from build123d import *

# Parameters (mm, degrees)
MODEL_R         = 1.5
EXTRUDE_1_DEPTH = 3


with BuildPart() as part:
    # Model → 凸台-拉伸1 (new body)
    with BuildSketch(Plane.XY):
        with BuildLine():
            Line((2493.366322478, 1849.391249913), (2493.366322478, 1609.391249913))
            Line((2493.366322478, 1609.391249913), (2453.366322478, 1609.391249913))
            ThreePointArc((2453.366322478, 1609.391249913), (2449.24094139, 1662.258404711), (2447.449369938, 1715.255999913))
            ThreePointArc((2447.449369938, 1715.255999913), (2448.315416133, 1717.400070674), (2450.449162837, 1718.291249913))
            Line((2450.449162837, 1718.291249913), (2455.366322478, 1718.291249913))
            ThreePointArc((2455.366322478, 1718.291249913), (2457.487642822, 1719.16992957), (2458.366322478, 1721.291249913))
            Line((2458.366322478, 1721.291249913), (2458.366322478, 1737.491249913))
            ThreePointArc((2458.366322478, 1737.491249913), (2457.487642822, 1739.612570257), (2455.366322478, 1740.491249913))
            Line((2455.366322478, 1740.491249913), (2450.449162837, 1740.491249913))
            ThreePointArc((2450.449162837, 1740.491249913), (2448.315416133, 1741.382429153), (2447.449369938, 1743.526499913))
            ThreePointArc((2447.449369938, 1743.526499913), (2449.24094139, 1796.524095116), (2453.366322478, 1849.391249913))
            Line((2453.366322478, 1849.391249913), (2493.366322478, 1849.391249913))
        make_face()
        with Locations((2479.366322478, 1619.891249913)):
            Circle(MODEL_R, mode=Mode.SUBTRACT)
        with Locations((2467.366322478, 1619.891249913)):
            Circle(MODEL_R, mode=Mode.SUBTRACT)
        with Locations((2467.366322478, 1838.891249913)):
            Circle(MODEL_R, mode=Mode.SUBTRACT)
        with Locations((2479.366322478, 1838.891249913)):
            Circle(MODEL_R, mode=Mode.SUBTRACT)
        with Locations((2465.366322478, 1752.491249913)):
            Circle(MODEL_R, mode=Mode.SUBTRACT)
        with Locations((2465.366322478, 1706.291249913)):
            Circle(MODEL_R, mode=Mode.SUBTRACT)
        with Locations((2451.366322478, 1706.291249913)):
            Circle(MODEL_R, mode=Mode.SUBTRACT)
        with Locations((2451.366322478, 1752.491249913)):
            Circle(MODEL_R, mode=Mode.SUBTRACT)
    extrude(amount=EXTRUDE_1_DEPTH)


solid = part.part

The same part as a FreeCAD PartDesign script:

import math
import FreeCAD as App
import Part
import Sketcher

doc = App.newDocument("Part")
body = doc.addObject("PartDesign::Body", "Body")

# Sketch on XY plane
sketch1 = body.newObject("Sketcher::SketchObject", "Sketch")
sketch1.AttachmentSupport = (doc.getObject("XY_Plane"), [""])
sketch1.MapMode = "FlatFace"
sketch1.addGeometry([
    Part.LineSegment(App.Vector(2493.4, 1609.4, 0), App.Vector(2493.4, 1849.4, 0)),  # 0
    Part.LineSegment(App.Vector(2493.4, 1849.4, 0), App.Vector(2453.4, 1849.4, 0)),  # 1
    Part.ArcOfCircle(Part.Circle(App.Vector(3650.4, 1729.4, 0), App.Vector(0, 0, 1), 1203), math.radians(174.28), math.radians(179.33)),  # 2
    Part.ArcOfCircle(Part.Circle(App.Vector(2450.4, 1743.5, 0), App.Vector(0, 0, 1), 3), math.radians(179), math.radians(270)),  # 3
    Part.LineSegment(App.Vector(2450.4, 1740.5, 0), App.Vector(2455.4, 1740.5, 0)),  # 4
    Part.ArcOfCircle(Part.Circle(App.Vector(2455.4, 1737.5, 0), App.Vector(0, 0, 1), 3), math.radians(0), math.radians(90)),  # 5
    Part.LineSegment(App.Vector(2458.4, 1737.5, 0), App.Vector(2458.4, 1721.3, 0)),  # 6
    Part.ArcOfCircle(Part.Circle(App.Vector(2455.4, 1721.3, 0), App.Vector(0, 0, 1), 3), math.radians(-90), math.radians(0)),  # 7
    Part.LineSegment(App.Vector(2455.4, 1718.3, 0), App.Vector(2450.4, 1718.3, 0)),  # 8
    Part.ArcOfCircle(Part.Circle(App.Vector(2450.4, 1715.3, 0), App.Vector(0, 0, 1), 3), math.radians(90), math.radians(181)),  # 9
    Part.ArcOfCircle(Part.Circle(App.Vector(3650.4, 1729.4, 0), App.Vector(0, 0, 1), 1203), math.radians(-179.33), math.radians(-174.28)),  # 10
    Part.LineSegment(App.Vector(2453.4, 1609.4, 0), App.Vector(2493.4, 1609.4, 0)),  # 11
    Part.Circle(App.Vector(2479.4, 1619.9, 0), App.Vector(0, 0, 1), 1.5),  # 12
    Part.Circle(App.Vector(2467.4, 1619.9, 0), App.Vector(0, 0, 1), 1.5),  # 13
    Part.Circle(App.Vector(2465.4, 1706.3, 0), App.Vector(0, 0, 1), 1.5),  # 14
    Part.Circle(App.Vector(2451.4, 1706.3, 0), App.Vector(0, 0, 1), 1.5),  # 15
    Part.Circle(App.Vector(2479.4, 1838.9, 0), App.Vector(0, 0, 1), 1.5),  # 16
    Part.Circle(App.Vector(2467.4, 1838.9, 0), App.Vector(0, 0, 1), 1.5),  # 17
    Part.Circle(App.Vector(2465.4, 1752.5, 0), App.Vector(0, 0, 1), 1.5),  # 18
    Part.Circle(App.Vector(2451.4, 1752.5, 0), App.Vector(0, 0, 1), 1.5),  # 19
], False)
sketch1.addConstraint([
    Sketcher.Constraint("Coincident", 0, 2, 1, 1),
    Sketcher.Constraint("Coincident", 1, 2, 2, 1),
    Sketcher.Constraint("Tangent", 2, 2, 3, 1),
    Sketcher.Constraint("Tangent", 3, 2, 4, 1),
    Sketcher.Constraint("Tangent", 4, 2, 5, 2),
    Sketcher.Constraint("Tangent", 5, 1, 6, 1),
    Sketcher.Constraint("Tangent", 6, 2, 7, 2),
    Sketcher.Constraint("Tangent", 7, 1, 8, 1),
    Sketcher.Constraint("Tangent", 8, 2, 9, 1),
    Sketcher.Constraint("Tangent", 9, 2, 10, 1),
    Sketcher.Constraint("Coincident", 10, 2, 11, 1),
    Sketcher.Constraint("Coincident", 11, 2, 0, 1),
    Sketcher.Constraint("Vertical", 0),
    Sketcher.Constraint("Horizontal", 1),
    Sketcher.Constraint("Horizontal", 4),
    Sketcher.Constraint("Vertical", 6),
    Sketcher.Constraint("Horizontal", 8),
    Sketcher.Constraint("Horizontal", 11),
    Sketcher.Constraint("Coincident", 10, 3, 2, 3),
    Sketcher.Constraint("Equal", 3, 5),
    Sketcher.Constraint("Equal", 5, 7),
    Sketcher.Constraint("Equal", 7, 9),
    Sketcher.Constraint("Equal", 2, 10),
    Sketcher.Constraint("Equal", 12, 13),
    Sketcher.Constraint("Equal", 13, 14),
    Sketcher.Constraint("Equal", 14, 15),
    Sketcher.Constraint("Equal", 15, 16),
    Sketcher.Constraint("Equal", 16, 17),
    Sketcher.Constraint("Equal", 17, 18),
    Sketcher.Constraint("Equal", 18, 19),
    Sketcher.Constraint("Horizontal", 12, 3, 13, 3),
    Sketcher.Constraint("Horizontal", 14, 3, 15, 3),
    Sketcher.Constraint("Horizontal", 16, 3, 17, 3),
    Sketcher.Constraint("Horizontal", 18, 3, 19, 3),
    Sketcher.Constraint("Vertical", 3, 3, 9, 3),
    Sketcher.Constraint("Vertical", 12, 3, 16, 3),
    Sketcher.Constraint("Vertical", 13, 3, 17, 3),
    Sketcher.Constraint("Vertical", 14, 3, 18, 3),
    Sketcher.Constraint("Vertical", 15, 3, 19, 3),
    Sketcher.Constraint("Equal", 1, 11),
    Sketcher.Constraint("Diameter", 12, 3.0),
    Sketcher.Constraint("Radius", 2, 1203.000001),
    Sketcher.Constraint("Radius", 3, 3.0),
    Sketcher.Constraint("DistanceX", 1, 2, 1, 1, 40.0),
    Sketcher.Constraint("DistanceY", 0, 1, 0, 2, 240.0),
    Sketcher.Constraint("DistanceY", 6, 2, 6, 1, 16.2),
    Sketcher.Constraint("DistanceX", 5, 3, 2, 3, 1195.000001),
    Sketcher.Constraint("DistanceX", 7, 3, 12, 3, 24.0),
    Sketcher.Constraint("DistanceX", 13, 3, 12, 3, 12.0),
    Sketcher.Constraint("DistanceY", 14, 3, 9, 3, 9.0),
    Sketcher.Constraint("DistanceX", 7, 3, 14, 3, 10.0),
    Sketcher.Constraint("DistanceX", 15, 3, 14, 3, 14.0),
    Sketcher.Constraint("DistanceY", 3, 3, 18, 3, 9.0),
    Sketcher.Constraint("DistanceY", 12, 3, 9, 3, 95.4),
    Sketcher.Constraint("DistanceY", 3, 3, 16, 3, 95.4),
    Sketcher.Constraint("DistanceY", -1, 1, 9, 2, 1715.256),
    Sketcher.Constraint("DistanceX", -1, 1, 2, 2, 2447.44937),
])
pad1 = body.newObject("PartDesign::Pad", "Pad")
pad1.Profile = sketch1
pad1.Length = 3

doc.recompute()
